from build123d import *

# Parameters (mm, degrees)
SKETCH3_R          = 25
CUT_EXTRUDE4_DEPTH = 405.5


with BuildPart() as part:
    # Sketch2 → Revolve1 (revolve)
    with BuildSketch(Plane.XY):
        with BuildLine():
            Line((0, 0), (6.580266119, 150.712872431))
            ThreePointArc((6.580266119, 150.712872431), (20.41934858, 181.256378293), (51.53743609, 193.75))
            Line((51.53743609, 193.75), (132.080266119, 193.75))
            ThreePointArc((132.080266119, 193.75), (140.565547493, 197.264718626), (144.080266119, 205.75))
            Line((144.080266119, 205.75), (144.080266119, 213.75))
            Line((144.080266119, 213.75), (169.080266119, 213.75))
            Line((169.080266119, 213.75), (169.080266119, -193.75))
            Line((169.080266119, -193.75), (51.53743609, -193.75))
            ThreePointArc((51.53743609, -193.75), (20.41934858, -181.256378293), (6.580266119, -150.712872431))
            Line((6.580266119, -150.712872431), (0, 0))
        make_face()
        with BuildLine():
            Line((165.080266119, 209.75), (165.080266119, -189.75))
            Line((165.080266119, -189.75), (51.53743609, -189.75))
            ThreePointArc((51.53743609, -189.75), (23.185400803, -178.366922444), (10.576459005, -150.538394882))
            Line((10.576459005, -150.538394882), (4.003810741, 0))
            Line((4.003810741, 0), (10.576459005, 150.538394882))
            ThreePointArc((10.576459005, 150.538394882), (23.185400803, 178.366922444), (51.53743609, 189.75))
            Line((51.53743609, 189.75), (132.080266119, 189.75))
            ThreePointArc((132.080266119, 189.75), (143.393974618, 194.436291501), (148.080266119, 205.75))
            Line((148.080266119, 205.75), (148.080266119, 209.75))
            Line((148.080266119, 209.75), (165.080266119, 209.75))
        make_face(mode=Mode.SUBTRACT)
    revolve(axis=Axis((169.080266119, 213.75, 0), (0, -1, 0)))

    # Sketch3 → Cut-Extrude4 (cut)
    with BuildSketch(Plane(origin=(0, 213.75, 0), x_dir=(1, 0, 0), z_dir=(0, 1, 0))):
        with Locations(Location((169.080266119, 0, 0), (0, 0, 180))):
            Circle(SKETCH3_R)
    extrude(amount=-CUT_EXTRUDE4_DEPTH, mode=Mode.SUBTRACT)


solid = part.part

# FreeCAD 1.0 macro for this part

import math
import FreeCAD as App
import Part
import Sketcher
Q = App.Units.Quantity

doc = App.newDocument("Part")
body = doc.addObject("PartDesign::Body", "Body")

sketch1 = body.newObject("Sketcher::SketchObject", "Sketch")
sketch1.AttachmentSupport = (doc.getObject("XY_Plane"), [""])
sketch1.MapMode = "FlatFace"
sketch1.addGeometry([
    Part.LineSegment(App.Vector(6.6, 150.7, 0), App.Vector(0, 0, 0)),
    Part.LineSegment(App.Vector(0, 0, 0), App.Vector(6.6, -150.7, 0)),
    Part.ArcOfCircle(Part.Circle(App.Vector(51.5, -148.8, 0), App.Vector(0, 0, 1), 45), math.radians(-178), math.radians(-90)),
    Part.LineSegment(App.Vector(51.5, -193.8, 0), App.Vector(169.1, -193.8, 0)),
    Part.LineSegment(App.Vector(169.1, -193.8, 0), App.Vector(169.1, 213.8, 0)),
    Part.LineSegment(App.Vector(169.1, 213.8, 0), App.Vector(144.1, 213.8, 0)),
    Part.LineSegment(App.Vector(144.1, 213.8, 0), App.Vector(144.1, 205.8, 0)),
    Part.ArcOfCircle(Part.Circle(App.Vector(132.1, 205.8, 0), App.Vector(0, 0, 1), 12), math.radians(-90), math.radians(0)),
    Part.LineSegment(App.Vector(132.1, 193.8, 0), App.Vector(51.5, 193.8, 0)),
    Part.ArcOfCircle(Part.Circle(App.Vector(51.5, 148.8, 0), App.Vector(0, 0, 1), 45), math.radians(90), math.radians(178)),
    Part.LineSegment(App.Vector(165.1, 209.8, 0), App.Vector(165.1, -189.8, 0)),
    Part.LineSegment(App.Vector(165.1, -189.8, 0), App.Vector(51.5, -189.8, 0)),
    Part.ArcOfCircle(Part.Circle(App.Vector(51.5, -148.7, 0), App.Vector(0, 0, 1), 41), math.radians(-177), math.radians(-90)),
    Part.LineSegment(App.Vector(10.6, -150.5, 0), App.Vector(4, 0, 0)),
    Part.LineSegment(App.Vector(4, 0, 0), App.Vector(10.6, 150.5, 0)),
    Part.ArcOfCircle(Part.Circle(App.Vector(51.5, 148.7, 0), App.Vector(0, 0, 1), 41), math.radians(90), math.radians(177)),
    Part.LineSegment(App.Vector(51.5, 189.8, 0), App.Vector(132.1, 189.8, 0)),
    Part.ArcOfCircle(Part.Circle(App.Vector(132.1, 205.8, 0), App.Vector(0, 0, 1), 16), math.radians(-90), math.radians(0)),
    Part.LineSegment(App.Vector(148.1, 205.8, 0), App.Vector(148.1, 209.8, 0)),
    Part.LineSegment(App.Vector(148.1, 209.8, 0), App.Vector(165.1, 209.8, 0)),
], False)
sketch1.addGeometry(Part.LineSegment(App.Vector(169.1, 213.8, 0), App.Vector(169.1, -193.8, 0)), True)
sketch1.addConstraint([
    Sketcher.Constraint("Coincident", 0, 2, 1, 1),
    Sketcher.Constraint("Tangent", 1, 2, 2, 1),
    Sketcher.Constraint("Tangent", 2, 2, 3, 1),
    Sketcher.Constraint("Coincident", 3, 2, 4, 1),
    Sketcher.Constraint("Coincident", 4, 2, 5, 1),
    Sketcher.Constraint("Coincident", 5, 2, 6, 1),
    Sketcher.Constraint("Tangent", 6, 2, 7, 2),
    Sketcher.Constraint("Tangent", 7, 1, 8, 1),
    Sketcher.Constraint("Tangent", 8, 2, 9, 1),
    Sketcher.Constraint("Tangent", 9, 2, 0, 1),
    Sketcher.Constraint("Coincident", 10, 2, 11, 1),
    Sketcher.Constraint("Tangent", 11, 2, 12, 2),
    Sketcher.Constraint("Tangent", 12, 1, 13, 1),
    Sketcher.Constraint("Coincident", 13, 2, 14, 1),
    Sketcher.Constraint("Tangent", 14, 2, 15, 2),
    Sketcher.Constraint("Tangent", 15, 1, 16, 1),
    Sketcher.Constraint("Tangent", 16, 2, 17, 1),
    Sketcher.Constraint("Tangent", 17, 2, 18, 1),
    Sketcher.Constraint("Coincident", 18, 2, 19, 1),
    Sketcher.Constraint("Coincident", 19, 2, 10, 1),
    Sketcher.Constraint("Horizontal", 3),
    Sketcher.Constraint("Vertical", 4),
    Sketcher.Constraint("Horizontal", 5),
    Sketcher.Constraint("Vertical", 6),
    Sketcher.Constraint("Horizontal", 8),
    Sketcher.Constraint("Vertical", 10),
    Sketcher.Constraint("Horizontal", 11),
    Sketcher.Constraint("Horizontal", 16),
    Sketcher.Constraint("Vertical", 18),
    Sketcher.Constraint("Horizontal", 19),
    Sketcher.Constraint("Vertical", 20),
    Sketcher.Constraint("Coincident", 0, 2, -1, 1),
    Sketcher.Constraint("Coincident", 12, 3, 2, 3),
    Sketcher.Constraint("Coincident", 15, 3, 9, 3),
    Sketcher.Constraint("Coincident", 17, 3, 7, 3),
    Sketcher.Constraint("Coincident", 20, 1, 4, 2),
    Sketcher.Constraint("Equal", 2, 9),
    Sketcher.Constraint("Equal", 12, 15),
    Sketcher.Constraint("Symmetric", 2, 3, 9, 3, -1),
    Sketcher.Constraint("PointOnObject", 13, 2, -1),
    Sketcher.Constraint("Parallel", 1, 13),
    Sketcher.Constraint("Horizontal", 2, 2, 20, 2),
    Sketcher.Constraint("Radius", 2, Q("45 mm")),
    Sketcher.Constraint("Radius", 7, Q("12 mm")),
    Sketcher.Constraint("Radius", 12, Q("41 mm")),
    Sketcher.Constraint("DistanceX", 5, 2, 5, 1, Q("25 mm")),
    Sketcher.Constraint("DistanceX", 19, 1, 19, 2, Q("17 mm")),
    Sketcher.Constraint("DistanceY", 6, 2, 6, 1, Q("8 mm")),
    Sketcher.Constraint("DistanceY", 18, 1, 18, 2, Q("4 mm")),
    Sketcher.Constraint("DistanceY", 4, 1, 4, 2, Q("407.5 mm")),
    Sketcher.Constraint("Angle", 0, Q("-92.5 deg")),
    Sketcher.Constraint("DistanceX", 1, 2, 3, 2, Q("162.5 mm")),
])
revolution = body.newObject("PartDesign::Revolution", "Revolution")
revolution.Profile = sketch1
revolution.ReferenceAxis = (sketch1, ["Axis0"])
revolution.Angle = 360

sketch2 = body.newObject("Sketcher::SketchObject", "Sketch001")
sketch2.AttachmentSupport = (doc.getObject("XZ_Plane"), [""])
sketch2.MapMode = "FlatFace"
sketch2.AttachmentOffset = App.Placement(App.Vector(0, 0, -213.75), App.Rotation())
sketch2.addGeometry(Part.Circle(App.Vector(169, 0, 0), App.Vector(0, 0, 1), 25), False)
sketch2.addConstraint([
    Sketcher.Constraint("PointOnObject", 0, 3, -1),
    Sketcher.Constraint("Diameter", 0, Q("50 mm")),
    Sketcher.Constraint("DistanceX", -1, 1, 0, 3, Q("169.080266 mm")),
])
pocket1 = body.newObject("PartDesign::Pocket", "Pocket")
pocket1.Profile = sketch2
pocket1.Length = 405.5
pocket1.Reversed = True

doc.recompute()
